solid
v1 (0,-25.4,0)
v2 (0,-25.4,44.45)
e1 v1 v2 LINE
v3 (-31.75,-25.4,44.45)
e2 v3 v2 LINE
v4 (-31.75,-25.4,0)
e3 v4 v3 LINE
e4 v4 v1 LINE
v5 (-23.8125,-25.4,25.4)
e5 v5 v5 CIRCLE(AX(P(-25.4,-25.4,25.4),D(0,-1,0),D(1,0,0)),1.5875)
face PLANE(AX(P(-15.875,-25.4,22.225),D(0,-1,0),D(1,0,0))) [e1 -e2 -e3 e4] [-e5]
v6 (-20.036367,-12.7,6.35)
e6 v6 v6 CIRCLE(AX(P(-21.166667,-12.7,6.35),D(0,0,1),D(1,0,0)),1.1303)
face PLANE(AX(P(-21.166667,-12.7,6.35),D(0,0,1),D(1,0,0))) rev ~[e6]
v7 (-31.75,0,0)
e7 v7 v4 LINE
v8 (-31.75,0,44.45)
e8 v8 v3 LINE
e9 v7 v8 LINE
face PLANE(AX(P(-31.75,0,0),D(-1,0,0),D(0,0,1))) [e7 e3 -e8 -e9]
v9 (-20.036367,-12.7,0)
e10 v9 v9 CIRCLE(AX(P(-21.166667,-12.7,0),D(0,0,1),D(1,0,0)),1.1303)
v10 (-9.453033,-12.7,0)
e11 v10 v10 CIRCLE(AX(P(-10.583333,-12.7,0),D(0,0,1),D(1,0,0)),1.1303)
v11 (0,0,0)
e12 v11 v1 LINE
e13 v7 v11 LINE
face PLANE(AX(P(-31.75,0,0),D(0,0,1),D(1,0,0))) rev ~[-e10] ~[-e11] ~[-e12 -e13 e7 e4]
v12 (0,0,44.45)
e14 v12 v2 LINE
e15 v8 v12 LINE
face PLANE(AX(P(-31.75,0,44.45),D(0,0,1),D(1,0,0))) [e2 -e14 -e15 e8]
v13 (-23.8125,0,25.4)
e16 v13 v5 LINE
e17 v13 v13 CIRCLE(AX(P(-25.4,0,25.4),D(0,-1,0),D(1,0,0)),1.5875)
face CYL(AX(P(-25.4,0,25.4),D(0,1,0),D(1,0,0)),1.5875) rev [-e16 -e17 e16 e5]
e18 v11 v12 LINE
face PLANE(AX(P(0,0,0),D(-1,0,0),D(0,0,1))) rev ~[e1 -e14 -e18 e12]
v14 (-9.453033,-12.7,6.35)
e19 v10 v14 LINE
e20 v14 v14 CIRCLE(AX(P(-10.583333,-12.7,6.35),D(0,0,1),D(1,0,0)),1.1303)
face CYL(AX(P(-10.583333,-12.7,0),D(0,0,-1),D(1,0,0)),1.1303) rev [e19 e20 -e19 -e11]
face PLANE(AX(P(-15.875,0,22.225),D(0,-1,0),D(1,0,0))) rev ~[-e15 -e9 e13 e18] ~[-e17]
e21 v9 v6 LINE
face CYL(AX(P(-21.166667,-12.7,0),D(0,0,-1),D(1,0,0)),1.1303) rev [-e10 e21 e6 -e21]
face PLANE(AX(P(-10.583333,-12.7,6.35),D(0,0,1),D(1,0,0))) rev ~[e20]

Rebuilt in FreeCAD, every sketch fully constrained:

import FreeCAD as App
import Part
import Sketcher
Q = App.Units.Quantity

doc = App.newDocument("Part")
body = doc.addObject("PartDesign::Body", "Body")

sketch1 = doc.addObject("Sketcher::SketchObject", "Sketch")
body.addObject(sketch1)
sketch1.AttachmentSupport = (doc.XZ_Plane, [""])
sketch1.MapMode = "FlatFace"
sketch1.addGeometry(Part.LineSegment(App.Vector(-31.8, 44.5, 0), App.Vector(-31.8, 0, 0)), False)
sketch1.addGeometry(Part.LineSegment(App.Vector(-31.8, 0, 0), App.Vector(0, 0, 0)), False)
sketch1.addGeometry(Part.LineSegment(App.Vector(0, 0, 0), App.Vector(0, 44.5, 0)), False)
sketch1.addGeometry(Part.LineSegment(App.Vector(0, 44.5, 0), App.Vector(-31.8, 44.5, 0)), False)
sketch1.addGeometry(Part.Circle(App.Vector(-25.4, 25.4, 0), App.Vector(0, 0, 1), 1.6), False)
sketch1.addConstraint(Sketcher.Constraint("Coincident", 0, 2, 1, 1))
sketch1.addConstraint(Sketcher.Constraint("Coincident", 1, 2, 2, 1))
sketch1.addConstraint(Sketcher.Constraint("Coincident", 2, 2, 3, 1))
sketch1.addConstraint(Sketcher.Constraint("Coincident", 3, 2, 0, 1))
sketch1.addConstraint(Sketcher.Constraint("Vertical", 0))
sketch1.addConstraint(Sketcher.Constraint("Horizontal", 1))
sketch1.addConstraint(Sketcher.Constraint("Vertical", 2))
sketch1.addConstraint(Sketcher.Constraint("Horizontal", 3))
sketch1.addConstraint(Sketcher.Constraint("Coincident", 1, 2, -1, 1))
sketch1.addConstraint(Sketcher.Constraint("Diameter", 4, Q("0.125 in")))
sketch1.addConstraint(Sketcher.Constraint("DistanceX", 4, 3, -1, 1, Q("1 in")))
sketch1.addConstraint(Sketcher.Constraint("DistanceY", -1, 1, 4, 3, Q("1 in")))
sketch1.addConstraint(Sketcher.Constraint("DistanceX", 1, 1, 1, 2, Q("1.25 in")))
sketch1.addConstraint(Sketcher.Constraint("DistanceY", 0, 2, 0, 1, Q("1.75 in")))
pad1 = doc.addObject("PartDesign::Pad", "Pad")
body.addObject(pad1)
pad1.Profile = sketch1
pad1.Length = Q("1 in")

sketch2 = doc.addObject("Sketcher::SketchObject", "Sketch001")
body.addObject(sketch2)
sketch2.AttachmentSupport = (doc.XY_Plane, [""])
sketch2.MapMode = "FlatFace"
sketch2.addGeometry(Part.Circle(App.Vector(-21.2, -12.7, 0), App.Vector(0, 0, 1), 1.1), False)
sketch2.addGeometry(Part.Circle(App.Vector(-10.6, -12.7, 0), App.Vector(0, 0, 1), 1.1), False)
sketch2.addConstraint(Sketcher.Constraint("Equal", 0, 1))
sketch2.addConstraint(Sketcher.Constraint("Horizontal", 0, 3, 1, 3))
sketch2.addConstraint(Sketcher.Constraint("Diameter", 0, Q("0.089 in")))
sketch2.addConstraint(Sketcher.Constraint("DistanceY", 0, 3, -1, 1, Q("0.5 in")))
sketch2.addConstraint(Sketcher.Constraint("DistanceX", 0, 3, -1, 1, 21.166667))
sketch2.addConstraint(Sketcher.Constraint("DistanceX", 1, 3, -1, 1, 10.583333))
pocket1 = doc.addObject("PartDesign::Pocket", "Pocket")
body.addObject(pocket1)
pocket1.Profile = sketch2
pocket1.Length = Q("0.25 in")
pocket1.Reversed = True

doc.recompute()
